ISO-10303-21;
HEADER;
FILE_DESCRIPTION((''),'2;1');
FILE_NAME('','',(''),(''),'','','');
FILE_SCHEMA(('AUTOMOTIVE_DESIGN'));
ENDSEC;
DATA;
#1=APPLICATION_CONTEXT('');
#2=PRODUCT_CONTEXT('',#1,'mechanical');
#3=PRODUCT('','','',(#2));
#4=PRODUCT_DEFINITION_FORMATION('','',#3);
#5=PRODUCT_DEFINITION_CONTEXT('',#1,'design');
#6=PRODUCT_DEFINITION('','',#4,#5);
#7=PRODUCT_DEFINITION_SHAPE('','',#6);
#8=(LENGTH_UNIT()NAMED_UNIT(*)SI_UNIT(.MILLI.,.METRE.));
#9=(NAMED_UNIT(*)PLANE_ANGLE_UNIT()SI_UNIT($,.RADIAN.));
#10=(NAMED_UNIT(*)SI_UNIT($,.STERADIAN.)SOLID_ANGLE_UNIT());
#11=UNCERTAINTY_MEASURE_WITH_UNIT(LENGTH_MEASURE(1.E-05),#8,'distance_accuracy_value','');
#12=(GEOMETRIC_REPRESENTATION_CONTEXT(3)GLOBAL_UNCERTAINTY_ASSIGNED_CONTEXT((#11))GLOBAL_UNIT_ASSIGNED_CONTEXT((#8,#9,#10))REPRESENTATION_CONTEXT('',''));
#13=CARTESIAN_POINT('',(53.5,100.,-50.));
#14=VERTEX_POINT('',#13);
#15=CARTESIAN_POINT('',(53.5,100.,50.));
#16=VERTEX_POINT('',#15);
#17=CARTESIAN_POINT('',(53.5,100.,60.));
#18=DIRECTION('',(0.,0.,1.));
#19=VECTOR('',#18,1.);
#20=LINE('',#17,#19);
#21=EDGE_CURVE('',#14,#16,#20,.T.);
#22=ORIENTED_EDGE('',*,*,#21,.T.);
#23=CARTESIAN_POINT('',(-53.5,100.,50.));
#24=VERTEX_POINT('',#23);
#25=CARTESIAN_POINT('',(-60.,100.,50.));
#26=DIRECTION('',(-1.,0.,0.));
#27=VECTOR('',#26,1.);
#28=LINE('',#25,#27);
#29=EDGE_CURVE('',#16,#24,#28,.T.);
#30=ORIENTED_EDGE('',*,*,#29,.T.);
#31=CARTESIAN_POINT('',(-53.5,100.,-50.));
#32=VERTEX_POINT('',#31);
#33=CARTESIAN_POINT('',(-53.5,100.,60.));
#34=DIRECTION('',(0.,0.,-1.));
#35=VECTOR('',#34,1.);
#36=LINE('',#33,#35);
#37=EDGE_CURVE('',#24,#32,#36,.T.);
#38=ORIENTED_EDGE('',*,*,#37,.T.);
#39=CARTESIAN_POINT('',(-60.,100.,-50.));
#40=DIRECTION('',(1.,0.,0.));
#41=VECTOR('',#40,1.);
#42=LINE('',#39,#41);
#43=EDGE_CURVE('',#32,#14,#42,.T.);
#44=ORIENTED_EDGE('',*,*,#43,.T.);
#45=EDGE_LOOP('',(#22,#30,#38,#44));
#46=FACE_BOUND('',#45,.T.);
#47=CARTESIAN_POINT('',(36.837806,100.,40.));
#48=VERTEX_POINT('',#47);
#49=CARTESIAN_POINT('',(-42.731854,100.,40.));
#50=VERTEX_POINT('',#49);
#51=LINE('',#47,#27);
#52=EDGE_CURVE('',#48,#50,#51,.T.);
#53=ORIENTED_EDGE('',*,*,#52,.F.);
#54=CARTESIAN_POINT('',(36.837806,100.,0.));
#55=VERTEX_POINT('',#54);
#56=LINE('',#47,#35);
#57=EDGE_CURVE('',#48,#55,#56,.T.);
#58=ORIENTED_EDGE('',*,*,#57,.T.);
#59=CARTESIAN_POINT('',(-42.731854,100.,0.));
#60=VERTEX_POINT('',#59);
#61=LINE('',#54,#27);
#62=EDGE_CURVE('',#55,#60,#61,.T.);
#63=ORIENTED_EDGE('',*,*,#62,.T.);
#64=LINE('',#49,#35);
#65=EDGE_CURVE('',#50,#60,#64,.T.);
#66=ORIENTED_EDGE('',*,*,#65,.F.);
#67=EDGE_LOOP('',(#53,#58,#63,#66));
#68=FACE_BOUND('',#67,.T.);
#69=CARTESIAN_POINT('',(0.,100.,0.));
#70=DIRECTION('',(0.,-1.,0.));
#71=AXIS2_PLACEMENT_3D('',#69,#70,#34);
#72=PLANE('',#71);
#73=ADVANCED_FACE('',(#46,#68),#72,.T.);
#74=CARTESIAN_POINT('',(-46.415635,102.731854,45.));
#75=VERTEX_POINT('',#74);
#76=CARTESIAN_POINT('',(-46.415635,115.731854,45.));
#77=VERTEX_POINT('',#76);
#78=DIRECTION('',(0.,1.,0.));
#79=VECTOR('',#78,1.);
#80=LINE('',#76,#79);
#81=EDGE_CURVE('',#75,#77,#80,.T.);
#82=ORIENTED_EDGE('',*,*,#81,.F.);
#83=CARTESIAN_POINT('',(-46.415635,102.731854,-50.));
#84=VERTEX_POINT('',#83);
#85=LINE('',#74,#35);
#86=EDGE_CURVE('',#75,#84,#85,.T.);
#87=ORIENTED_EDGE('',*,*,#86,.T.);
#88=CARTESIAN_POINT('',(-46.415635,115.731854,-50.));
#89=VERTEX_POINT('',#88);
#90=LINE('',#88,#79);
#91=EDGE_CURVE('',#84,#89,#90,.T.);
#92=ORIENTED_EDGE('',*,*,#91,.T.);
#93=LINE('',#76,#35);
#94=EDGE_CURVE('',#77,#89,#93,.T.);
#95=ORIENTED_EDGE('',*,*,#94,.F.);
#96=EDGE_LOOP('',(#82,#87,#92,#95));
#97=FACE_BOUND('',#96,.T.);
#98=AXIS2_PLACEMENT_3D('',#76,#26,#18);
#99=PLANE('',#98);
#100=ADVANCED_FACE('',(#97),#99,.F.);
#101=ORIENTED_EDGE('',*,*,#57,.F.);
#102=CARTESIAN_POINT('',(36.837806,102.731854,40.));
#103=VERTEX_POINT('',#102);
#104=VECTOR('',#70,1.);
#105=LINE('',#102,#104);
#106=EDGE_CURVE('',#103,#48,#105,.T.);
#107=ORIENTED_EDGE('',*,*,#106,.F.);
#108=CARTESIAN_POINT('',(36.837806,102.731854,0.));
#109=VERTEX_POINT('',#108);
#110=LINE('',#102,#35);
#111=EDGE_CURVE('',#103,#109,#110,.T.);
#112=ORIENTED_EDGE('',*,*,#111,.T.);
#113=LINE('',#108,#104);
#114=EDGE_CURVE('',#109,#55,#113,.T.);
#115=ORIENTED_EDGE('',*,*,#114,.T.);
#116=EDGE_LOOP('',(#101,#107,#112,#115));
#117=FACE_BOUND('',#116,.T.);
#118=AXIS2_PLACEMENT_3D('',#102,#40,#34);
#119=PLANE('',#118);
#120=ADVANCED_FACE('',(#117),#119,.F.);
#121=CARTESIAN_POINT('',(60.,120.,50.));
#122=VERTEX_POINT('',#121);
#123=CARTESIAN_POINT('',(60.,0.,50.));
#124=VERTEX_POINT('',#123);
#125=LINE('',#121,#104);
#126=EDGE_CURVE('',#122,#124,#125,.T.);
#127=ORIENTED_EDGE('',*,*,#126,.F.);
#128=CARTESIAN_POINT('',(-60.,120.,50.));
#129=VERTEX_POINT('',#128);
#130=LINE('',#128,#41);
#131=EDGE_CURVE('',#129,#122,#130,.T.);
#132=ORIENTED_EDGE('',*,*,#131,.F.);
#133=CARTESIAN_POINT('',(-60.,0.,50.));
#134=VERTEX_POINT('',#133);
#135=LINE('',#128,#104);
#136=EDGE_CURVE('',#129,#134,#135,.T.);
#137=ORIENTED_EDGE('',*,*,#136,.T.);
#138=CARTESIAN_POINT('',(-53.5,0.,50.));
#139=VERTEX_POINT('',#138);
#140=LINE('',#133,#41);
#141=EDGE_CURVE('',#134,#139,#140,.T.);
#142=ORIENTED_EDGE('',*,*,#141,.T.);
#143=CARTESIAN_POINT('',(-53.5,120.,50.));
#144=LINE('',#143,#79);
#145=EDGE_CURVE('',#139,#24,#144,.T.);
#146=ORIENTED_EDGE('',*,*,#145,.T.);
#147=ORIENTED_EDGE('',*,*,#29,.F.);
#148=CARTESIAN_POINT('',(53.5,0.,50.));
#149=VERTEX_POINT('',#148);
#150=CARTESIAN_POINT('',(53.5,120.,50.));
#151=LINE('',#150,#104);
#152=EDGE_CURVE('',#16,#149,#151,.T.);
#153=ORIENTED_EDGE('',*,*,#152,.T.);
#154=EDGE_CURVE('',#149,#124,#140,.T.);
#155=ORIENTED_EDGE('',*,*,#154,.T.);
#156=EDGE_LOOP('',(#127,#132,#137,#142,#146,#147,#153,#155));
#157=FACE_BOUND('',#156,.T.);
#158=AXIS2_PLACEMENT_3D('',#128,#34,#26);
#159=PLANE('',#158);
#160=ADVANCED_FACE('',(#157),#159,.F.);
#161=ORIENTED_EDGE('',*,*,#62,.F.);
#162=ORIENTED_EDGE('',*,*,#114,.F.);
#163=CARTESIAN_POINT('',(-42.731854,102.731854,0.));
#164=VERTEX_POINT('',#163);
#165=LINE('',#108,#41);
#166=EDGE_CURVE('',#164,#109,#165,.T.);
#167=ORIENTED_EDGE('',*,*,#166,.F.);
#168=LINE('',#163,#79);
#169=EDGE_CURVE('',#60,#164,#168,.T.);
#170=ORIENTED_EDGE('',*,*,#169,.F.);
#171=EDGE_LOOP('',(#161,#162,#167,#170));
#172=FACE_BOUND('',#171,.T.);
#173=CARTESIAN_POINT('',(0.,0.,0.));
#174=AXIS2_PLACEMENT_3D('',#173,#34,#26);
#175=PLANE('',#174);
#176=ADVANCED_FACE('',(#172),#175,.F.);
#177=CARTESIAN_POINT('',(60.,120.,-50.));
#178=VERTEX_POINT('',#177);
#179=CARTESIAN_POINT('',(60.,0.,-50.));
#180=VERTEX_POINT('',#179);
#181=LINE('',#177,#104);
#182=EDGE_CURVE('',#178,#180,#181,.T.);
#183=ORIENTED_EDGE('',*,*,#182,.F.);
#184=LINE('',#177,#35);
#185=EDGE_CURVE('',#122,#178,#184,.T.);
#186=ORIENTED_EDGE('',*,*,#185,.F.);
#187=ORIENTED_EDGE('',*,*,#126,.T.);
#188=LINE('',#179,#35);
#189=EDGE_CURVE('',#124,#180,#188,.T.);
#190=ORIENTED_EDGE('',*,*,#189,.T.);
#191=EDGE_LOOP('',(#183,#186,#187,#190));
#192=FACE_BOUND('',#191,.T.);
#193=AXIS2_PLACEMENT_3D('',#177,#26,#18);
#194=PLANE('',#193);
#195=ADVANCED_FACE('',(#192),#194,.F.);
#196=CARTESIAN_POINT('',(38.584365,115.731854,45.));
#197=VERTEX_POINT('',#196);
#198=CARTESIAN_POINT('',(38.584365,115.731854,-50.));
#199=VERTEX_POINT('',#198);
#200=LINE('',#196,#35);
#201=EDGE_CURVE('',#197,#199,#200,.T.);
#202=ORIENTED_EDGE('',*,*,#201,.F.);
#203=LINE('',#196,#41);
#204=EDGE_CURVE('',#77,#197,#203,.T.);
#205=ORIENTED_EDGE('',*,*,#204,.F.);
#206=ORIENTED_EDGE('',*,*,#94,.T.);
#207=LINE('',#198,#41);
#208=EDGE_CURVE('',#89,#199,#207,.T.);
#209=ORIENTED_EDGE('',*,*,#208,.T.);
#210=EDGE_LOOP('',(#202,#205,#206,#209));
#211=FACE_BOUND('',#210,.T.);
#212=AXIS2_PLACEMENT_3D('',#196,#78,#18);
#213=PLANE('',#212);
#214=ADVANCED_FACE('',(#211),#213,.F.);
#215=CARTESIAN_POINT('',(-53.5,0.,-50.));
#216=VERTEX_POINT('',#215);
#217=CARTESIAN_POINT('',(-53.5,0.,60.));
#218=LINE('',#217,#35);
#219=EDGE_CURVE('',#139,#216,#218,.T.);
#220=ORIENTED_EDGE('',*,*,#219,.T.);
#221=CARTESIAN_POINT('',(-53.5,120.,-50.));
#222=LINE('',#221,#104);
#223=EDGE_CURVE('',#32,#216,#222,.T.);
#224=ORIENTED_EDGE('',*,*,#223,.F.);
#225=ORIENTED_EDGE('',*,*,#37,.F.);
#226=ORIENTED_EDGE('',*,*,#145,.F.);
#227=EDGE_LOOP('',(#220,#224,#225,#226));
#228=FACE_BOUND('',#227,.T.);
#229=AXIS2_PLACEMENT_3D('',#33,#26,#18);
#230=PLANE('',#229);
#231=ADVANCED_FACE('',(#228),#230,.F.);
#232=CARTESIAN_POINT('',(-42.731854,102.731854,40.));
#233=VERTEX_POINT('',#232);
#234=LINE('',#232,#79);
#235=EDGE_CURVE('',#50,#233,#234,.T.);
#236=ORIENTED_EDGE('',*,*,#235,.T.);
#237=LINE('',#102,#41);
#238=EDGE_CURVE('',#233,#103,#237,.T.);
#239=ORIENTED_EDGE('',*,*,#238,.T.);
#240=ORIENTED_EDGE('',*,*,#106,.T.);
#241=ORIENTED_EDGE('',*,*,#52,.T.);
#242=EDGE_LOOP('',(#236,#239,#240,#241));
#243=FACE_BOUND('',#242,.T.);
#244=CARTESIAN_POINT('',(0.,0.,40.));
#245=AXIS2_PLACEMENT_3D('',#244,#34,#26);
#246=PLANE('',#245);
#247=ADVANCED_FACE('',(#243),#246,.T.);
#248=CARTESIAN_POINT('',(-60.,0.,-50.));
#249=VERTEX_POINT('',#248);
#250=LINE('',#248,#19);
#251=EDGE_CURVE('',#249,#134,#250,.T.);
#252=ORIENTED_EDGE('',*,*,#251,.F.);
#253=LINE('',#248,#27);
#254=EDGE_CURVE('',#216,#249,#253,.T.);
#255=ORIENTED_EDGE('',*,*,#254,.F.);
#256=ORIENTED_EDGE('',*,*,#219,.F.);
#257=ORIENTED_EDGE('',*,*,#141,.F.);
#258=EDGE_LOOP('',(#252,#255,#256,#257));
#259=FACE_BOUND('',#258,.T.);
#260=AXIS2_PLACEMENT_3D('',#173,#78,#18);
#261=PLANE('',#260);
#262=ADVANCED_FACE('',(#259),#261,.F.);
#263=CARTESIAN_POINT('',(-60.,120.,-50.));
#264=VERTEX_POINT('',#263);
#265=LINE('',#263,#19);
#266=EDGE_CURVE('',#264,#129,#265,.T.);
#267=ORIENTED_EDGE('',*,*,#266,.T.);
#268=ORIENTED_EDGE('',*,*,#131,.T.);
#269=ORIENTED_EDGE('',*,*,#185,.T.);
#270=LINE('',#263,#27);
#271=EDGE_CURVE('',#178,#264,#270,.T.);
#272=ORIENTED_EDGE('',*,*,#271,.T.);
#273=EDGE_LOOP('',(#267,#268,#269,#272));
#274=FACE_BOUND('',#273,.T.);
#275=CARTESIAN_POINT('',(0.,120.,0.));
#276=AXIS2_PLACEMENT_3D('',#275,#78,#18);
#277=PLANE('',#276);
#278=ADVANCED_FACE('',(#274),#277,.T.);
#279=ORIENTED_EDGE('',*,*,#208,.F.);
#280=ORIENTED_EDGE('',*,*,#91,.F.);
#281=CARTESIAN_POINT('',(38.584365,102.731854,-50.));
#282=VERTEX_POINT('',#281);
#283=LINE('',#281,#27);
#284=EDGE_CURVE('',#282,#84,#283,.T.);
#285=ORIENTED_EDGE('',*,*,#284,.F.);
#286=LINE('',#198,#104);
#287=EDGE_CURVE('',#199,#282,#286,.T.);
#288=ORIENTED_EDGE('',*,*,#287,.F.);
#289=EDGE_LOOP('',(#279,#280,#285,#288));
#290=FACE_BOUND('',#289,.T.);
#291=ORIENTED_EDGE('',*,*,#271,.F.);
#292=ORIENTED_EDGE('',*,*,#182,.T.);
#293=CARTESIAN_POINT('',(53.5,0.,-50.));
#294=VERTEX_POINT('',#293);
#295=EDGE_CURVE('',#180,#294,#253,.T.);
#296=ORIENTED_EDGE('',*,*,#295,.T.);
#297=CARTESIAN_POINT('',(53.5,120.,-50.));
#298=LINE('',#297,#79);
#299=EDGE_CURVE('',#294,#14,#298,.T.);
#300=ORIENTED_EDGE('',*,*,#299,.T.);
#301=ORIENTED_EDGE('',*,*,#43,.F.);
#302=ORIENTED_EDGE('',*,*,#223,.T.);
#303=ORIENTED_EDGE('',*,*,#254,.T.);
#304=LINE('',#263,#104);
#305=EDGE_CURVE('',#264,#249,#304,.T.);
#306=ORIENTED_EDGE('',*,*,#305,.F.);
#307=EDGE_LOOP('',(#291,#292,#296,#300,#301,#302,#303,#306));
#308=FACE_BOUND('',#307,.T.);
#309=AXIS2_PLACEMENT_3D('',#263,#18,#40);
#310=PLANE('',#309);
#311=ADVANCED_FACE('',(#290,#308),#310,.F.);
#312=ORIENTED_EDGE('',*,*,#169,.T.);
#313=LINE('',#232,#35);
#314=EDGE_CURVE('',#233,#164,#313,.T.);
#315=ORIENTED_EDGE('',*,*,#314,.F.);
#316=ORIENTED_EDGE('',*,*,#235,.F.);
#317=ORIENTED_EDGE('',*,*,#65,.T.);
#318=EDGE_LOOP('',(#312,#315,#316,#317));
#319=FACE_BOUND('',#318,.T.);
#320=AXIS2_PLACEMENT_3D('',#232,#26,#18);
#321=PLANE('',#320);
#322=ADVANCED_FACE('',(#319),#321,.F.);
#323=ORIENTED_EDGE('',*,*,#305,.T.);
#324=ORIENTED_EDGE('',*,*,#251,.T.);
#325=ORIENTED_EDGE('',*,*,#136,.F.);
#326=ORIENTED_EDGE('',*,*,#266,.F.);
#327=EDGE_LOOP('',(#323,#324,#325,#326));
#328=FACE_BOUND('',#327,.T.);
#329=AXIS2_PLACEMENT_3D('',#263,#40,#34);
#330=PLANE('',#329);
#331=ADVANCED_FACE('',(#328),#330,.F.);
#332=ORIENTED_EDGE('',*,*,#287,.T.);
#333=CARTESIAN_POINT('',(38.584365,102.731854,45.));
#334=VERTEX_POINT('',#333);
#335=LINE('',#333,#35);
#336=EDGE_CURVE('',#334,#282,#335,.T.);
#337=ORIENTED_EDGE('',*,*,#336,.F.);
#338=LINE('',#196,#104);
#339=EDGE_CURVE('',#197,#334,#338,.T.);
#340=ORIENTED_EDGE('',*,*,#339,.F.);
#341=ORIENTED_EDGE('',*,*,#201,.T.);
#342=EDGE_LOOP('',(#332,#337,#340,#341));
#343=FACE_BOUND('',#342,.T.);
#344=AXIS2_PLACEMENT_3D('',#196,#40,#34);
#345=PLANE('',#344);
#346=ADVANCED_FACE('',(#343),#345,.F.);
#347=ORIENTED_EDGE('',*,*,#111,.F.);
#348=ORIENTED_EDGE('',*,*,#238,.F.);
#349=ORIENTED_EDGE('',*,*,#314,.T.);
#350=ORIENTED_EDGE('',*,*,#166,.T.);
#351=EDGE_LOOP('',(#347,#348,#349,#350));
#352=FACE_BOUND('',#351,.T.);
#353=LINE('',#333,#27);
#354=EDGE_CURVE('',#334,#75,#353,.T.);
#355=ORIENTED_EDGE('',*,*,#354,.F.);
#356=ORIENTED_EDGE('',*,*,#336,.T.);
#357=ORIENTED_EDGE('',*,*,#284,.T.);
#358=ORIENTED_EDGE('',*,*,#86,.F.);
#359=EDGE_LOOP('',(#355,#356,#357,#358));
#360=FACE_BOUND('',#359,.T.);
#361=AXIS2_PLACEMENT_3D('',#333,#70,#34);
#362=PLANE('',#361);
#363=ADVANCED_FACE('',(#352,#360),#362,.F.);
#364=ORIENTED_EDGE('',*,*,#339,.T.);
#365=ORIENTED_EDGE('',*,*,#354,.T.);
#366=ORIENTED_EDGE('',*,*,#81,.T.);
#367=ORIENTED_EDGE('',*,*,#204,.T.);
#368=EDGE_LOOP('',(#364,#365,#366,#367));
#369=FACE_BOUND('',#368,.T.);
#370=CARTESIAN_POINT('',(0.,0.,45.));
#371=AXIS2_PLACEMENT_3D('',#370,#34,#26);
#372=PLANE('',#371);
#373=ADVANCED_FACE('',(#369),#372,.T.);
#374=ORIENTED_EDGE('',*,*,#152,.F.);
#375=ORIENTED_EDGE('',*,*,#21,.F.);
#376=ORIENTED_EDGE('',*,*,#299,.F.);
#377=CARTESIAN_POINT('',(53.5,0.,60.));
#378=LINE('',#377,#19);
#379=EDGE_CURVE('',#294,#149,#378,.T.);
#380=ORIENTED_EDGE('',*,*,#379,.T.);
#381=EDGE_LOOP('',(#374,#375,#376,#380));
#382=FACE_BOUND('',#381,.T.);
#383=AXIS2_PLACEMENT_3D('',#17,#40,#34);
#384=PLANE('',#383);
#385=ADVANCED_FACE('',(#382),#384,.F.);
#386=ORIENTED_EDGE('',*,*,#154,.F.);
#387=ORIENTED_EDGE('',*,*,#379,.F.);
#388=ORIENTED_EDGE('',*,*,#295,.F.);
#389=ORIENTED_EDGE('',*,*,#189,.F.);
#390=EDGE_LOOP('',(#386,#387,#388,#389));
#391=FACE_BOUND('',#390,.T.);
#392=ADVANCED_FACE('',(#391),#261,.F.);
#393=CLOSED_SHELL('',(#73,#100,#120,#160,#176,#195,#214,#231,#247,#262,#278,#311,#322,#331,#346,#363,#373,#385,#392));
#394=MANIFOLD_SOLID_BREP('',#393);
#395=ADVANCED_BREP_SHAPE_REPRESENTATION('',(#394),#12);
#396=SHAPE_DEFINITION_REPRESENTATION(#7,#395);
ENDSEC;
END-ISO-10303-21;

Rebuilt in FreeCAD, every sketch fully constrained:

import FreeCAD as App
import Part
import Sketcher

V = App.Vector

doc = App.newDocument("Part")
params = doc.addObject("Spreadsheet::Sheet", "Params")
for row, (alias, value) in enumerate([
    ("sketch1_width", "120 mm"),
    ("sketch1_height", "100 mm"),
    ("pad1_length", "120 mm"),
    ("sketch2_width", "107 mm"),
    ("sketch2_height", "120 mm"),
    ("pocket1_length", "100 mm"),
    ("sketch3_width", "85 mm"),
    ("sketch3_height", "13 mm"),
    ("pocket2_length", "95 mm"),
    ("pocket3_length", "40 mm"),
], start=1):
    params.set(f"A{row}", alias)
    params.set(f"B{row}", "=" + value)
    params.setAlias(f"B{row}", alias)

body = doc.addObject("PartDesign::Body", "Body")

sketch1 = body.newObject("Sketcher::SketchObject", "Sketch")
sketch1.AttachmentSupport = (doc.getObject("XZ_Plane"), [""])
sketch1.MapMode = "FlatFace"
sketch1.addGeometry(Part.LineSegment(V(-60, -50, 0), V(-60, 50, 0)), False)
sketch1.addGeometry(Part.LineSegment(V(-60, 50, 0), V(60, 50, 0)), False)
sketch1.addGeometry(Part.LineSegment(V(60, 50, 0), V(60, -50, 0)), False)
sketch1.addGeometry(Part.LineSegment(V(60, -50, 0), V(-60, -50, 0)), False)
sketch1.addConstraint(Sketcher.Constraint("Coincident", 0, 2, 1, 1))
sketch1.addConstraint(Sketcher.Constraint("Coincident", 1, 2, 2, 1))
sketch1.addConstraint(Sketcher.Constraint("Coincident", 2, 2, 3, 1))
sketch1.addConstraint(Sketcher.Constraint("Coincident", 3, 2, 0, 1))
sketch1.addConstraint(Sketcher.Constraint("Vertical", 0))
sketch1.addConstraint(Sketcher.Constraint("Horizontal", 1))
sketch1.addConstraint(Sketcher.Constraint("Vertical", 2))
sketch1.addConstraint(Sketcher.Constraint("Horizontal", 3))
sketch1.addConstraint(Sketcher.Constraint("Symmetric", 0, 2, 2, 2, -1, 1))
sketch1.addConstraint(Sketcher.Constraint("DistanceX", 1, 1, 1, 2, 120.0))
sketch1.addConstraint(Sketcher.Constraint("DistanceY", 0, 1, 0, 2, 100.0))
sketch1.setExpression("Constraints[9]", "Params.sketch1_width")
sketch1.setExpression("Constraints[10]", "Params.sketch1_height")
pad1 = body.newObject("PartDesign::Pad", "Pad")
pad1.Profile = sketch1
pad1.setExpression("Length", "Params.pad1_length")
pad1.Reversed = True

sketch2 = body.newObject("Sketcher::SketchObject", "Sketch001")
sketch2.AttachmentSupport = (doc.getObject("XZ_Plane"), [""])
sketch2.MapMode = "FlatFace"
sketch2.addGeometry(Part.LineSegment(V(-53.5, 60, 0), V(-53.5, -60, 0)), False)
sketch2.addGeometry(Part.LineSegment(V(-53.5, -60, 0), V(53.5, -60, 0)), False)
sketch2.addGeometry(Part.LineSegment(V(53.5, -60, 0), V(53.5, 60, 0)), False)
sketch2.addGeometry(Part.LineSegment(V(53.5, 60, 0), V(-53.5, 60, 0)), False)
sketch2.addConstraint(Sketcher.Constraint("Coincident", 0, 2, 1, 1))
sketch2.addConstraint(Sketcher.Constraint("Coincident", 1, 2, 2, 1))
sketch2.addConstraint(Sketcher.Constraint("Coincident", 2, 2, 3, 1))
sketch2.addConstraint(Sketcher.Constraint("Coincident", 3, 2, 0, 1))
sketch2.addConstraint(Sketcher.Constraint("Vertical", 0))
sketch2.addConstraint(Sketcher.Constraint("Horizontal", 1))
sketch2.addConstraint(Sketcher.Constraint("Vertical", 2))
sketch2.addConstraint(Sketcher.Constraint("Horizontal", 3))
sketch2.addConstraint(Sketcher.Constraint("Symmetric", 0, 2, 2, 2, -1, 1))
sketch2.addConstraint(Sketcher.Constraint("DistanceX", 1, 1, 1, 2, 107.0))
sketch2.addConstraint(Sketcher.Constraint("DistanceY", 0, 2, 0, 1, 120.0))
sketch2.setExpression("Constraints[9]", "Params.sketch2_width")
sketch2.setExpression("Constraints[10]", "Params.sketch2_height")
pocket1 = body.newObject("PartDesign::Pocket", "Pocket")
pocket1.Profile = sketch2
pocket1.setExpression("Length", "Params.pocket1_length")

sketch3 = body.newObject("Sketcher::SketchObject", "Sketch002")
sketch3.AttachmentSupport = (doc.getObject("XY_Plane"), [""])
sketch3.MapMode = "FlatFace"
sketch3.AttachmentOffset = App.Placement(V(0, 0, -50), App.Rotation())
sketch3.addGeometry(Part.LineSegment(V(38.584365, 115.731854, 0), V(38.584365, 102.731854, 0)), False)
sketch3.addGeometry(Part.LineSegment(V(38.584365, 102.731854, 0), V(-46.415635, 102.731854, 0)), False)
sketch3.addGeometry(Part.LineSegment(V(-46.415635, 102.731854, 0), V(-46.415635, 115.731854, 0)), False)
sketch3.addGeometry(Part.LineSegment(V(-46.415635, 115.731854, 0), V(38.584365, 115.731854, 0)), False)
sketch3.addConstraint(Sketcher.Constraint("Coincident", 0, 2, 1, 1))
sketch3.addConstraint(Sketcher.Constraint("Coincident", 1, 2, 2, 1))
sketch3.addConstraint(Sketcher.Constraint("Coincident", 2, 2, 3, 1))
sketch3.addConstraint(Sketcher.Constraint("Coincident", 3, 2, 0, 1))
sketch3.addConstraint(Sketcher.Constraint("Vertical", 0))
sketch3.addConstraint(Sketcher.Constraint("Horizontal", 1))
sketch3.addConstraint(Sketcher.Constraint("Vertical", 2))
sketch3.addConstraint(Sketcher.Constraint("Horizontal", 3))
sketch3.addConstraint(Sketcher.Constraint("DistanceX", 1, 2, 1, 1, 85.0))
sketch3.addConstraint(Sketcher.Constraint("DistanceY", 0, 2, 0, 1, 13.0))
sketch3.addConstraint(Sketcher.Constraint("DistanceX", -1, 1, 0, 2, 38.584365))
sketch3.addConstraint(Sketcher.Constraint("DistanceY", -1, 1, 0, 2, 102.731854))
sketch3.setExpression("Constraints[8]", "Params.sketch3_width")
sketch3.setExpression("Constraints[9]", "Params.sketch3_height")
pocket2 = body.newObject("PartDesign::Pocket", "Pocket001")
pocket2.Profile = sketch3
pocket2.setExpression("Length", "Params.pocket2_length")
pocket2.Reversed = True

sketch4 = body.newObject("Sketcher::SketchObject", "Sketch003")
sketch4.AttachmentSupport = (doc.getObject("XY_Plane"), [""])
sketch4.MapMode = "FlatFace"
sketch4.addGeometry(Part.LineSegment(V(36.837806, 102.731854, 0), V(36.837806, 100, 0)), False)
sketch4.addGeometry(Part.LineSegment(V(36.837806, 100, 0), V(-42.731854, 100, 0)), False)
sketch4.addGeometry(Part.LineSegment(V(-42.731854, 100, 0), V(-42.731854, 102.731854, 0)), False)
sketch4.addGeometry(Part.LineSegment(V(-42.731854, 102.731854, 0), V(36.837806, 102.731854, 0)), False)
sketch4.addConstraint(Sketcher.Constraint("Coincident", 0, 2, 1, 1))
sketch4.addConstraint(Sketcher.Constraint("Coincident", 1, 2, 2, 1))
sketch4.addConstraint(Sketcher.Constraint("Coincident", 2, 2, 3, 1))
sketch4.addConstraint(Sketcher.Constraint("Coincident", 3, 2, 0, 1))
sketch4.addConstraint(Sketcher.Constraint("Vertical", 0))
sketch4.addConstraint(Sketcher.Constraint("Horizontal", 1))
sketch4.addConstraint(Sketcher.Constraint("Vertical", 2))
sketch4.addConstraint(Sketcher.Constraint("Horizontal", 3))
sketch4.addConstraint(Sketcher.Constraint("DistanceY", -1, 1, 0, 2, 100.0))
sketch4.addConstraint(Sketcher.Constraint("DistanceX", 1, 2, 1, 1, 79.56966))
sketch4.addConstraint(Sketcher.Constraint("DistanceY", 0, 2, 0, 1, 2.731854))
sketch4.addConstraint(Sketcher.Constraint("DistanceX", -1, 1, 0, 2, 36.837806))
pocket3 = body.newObject("PartDesign::Pocket", "Pocket002")
pocket3.Profile = sketch4
pocket3.setExpression("Length", "Params.pocket3_length")
pocket3.Reversed = True

doc.recompute()
